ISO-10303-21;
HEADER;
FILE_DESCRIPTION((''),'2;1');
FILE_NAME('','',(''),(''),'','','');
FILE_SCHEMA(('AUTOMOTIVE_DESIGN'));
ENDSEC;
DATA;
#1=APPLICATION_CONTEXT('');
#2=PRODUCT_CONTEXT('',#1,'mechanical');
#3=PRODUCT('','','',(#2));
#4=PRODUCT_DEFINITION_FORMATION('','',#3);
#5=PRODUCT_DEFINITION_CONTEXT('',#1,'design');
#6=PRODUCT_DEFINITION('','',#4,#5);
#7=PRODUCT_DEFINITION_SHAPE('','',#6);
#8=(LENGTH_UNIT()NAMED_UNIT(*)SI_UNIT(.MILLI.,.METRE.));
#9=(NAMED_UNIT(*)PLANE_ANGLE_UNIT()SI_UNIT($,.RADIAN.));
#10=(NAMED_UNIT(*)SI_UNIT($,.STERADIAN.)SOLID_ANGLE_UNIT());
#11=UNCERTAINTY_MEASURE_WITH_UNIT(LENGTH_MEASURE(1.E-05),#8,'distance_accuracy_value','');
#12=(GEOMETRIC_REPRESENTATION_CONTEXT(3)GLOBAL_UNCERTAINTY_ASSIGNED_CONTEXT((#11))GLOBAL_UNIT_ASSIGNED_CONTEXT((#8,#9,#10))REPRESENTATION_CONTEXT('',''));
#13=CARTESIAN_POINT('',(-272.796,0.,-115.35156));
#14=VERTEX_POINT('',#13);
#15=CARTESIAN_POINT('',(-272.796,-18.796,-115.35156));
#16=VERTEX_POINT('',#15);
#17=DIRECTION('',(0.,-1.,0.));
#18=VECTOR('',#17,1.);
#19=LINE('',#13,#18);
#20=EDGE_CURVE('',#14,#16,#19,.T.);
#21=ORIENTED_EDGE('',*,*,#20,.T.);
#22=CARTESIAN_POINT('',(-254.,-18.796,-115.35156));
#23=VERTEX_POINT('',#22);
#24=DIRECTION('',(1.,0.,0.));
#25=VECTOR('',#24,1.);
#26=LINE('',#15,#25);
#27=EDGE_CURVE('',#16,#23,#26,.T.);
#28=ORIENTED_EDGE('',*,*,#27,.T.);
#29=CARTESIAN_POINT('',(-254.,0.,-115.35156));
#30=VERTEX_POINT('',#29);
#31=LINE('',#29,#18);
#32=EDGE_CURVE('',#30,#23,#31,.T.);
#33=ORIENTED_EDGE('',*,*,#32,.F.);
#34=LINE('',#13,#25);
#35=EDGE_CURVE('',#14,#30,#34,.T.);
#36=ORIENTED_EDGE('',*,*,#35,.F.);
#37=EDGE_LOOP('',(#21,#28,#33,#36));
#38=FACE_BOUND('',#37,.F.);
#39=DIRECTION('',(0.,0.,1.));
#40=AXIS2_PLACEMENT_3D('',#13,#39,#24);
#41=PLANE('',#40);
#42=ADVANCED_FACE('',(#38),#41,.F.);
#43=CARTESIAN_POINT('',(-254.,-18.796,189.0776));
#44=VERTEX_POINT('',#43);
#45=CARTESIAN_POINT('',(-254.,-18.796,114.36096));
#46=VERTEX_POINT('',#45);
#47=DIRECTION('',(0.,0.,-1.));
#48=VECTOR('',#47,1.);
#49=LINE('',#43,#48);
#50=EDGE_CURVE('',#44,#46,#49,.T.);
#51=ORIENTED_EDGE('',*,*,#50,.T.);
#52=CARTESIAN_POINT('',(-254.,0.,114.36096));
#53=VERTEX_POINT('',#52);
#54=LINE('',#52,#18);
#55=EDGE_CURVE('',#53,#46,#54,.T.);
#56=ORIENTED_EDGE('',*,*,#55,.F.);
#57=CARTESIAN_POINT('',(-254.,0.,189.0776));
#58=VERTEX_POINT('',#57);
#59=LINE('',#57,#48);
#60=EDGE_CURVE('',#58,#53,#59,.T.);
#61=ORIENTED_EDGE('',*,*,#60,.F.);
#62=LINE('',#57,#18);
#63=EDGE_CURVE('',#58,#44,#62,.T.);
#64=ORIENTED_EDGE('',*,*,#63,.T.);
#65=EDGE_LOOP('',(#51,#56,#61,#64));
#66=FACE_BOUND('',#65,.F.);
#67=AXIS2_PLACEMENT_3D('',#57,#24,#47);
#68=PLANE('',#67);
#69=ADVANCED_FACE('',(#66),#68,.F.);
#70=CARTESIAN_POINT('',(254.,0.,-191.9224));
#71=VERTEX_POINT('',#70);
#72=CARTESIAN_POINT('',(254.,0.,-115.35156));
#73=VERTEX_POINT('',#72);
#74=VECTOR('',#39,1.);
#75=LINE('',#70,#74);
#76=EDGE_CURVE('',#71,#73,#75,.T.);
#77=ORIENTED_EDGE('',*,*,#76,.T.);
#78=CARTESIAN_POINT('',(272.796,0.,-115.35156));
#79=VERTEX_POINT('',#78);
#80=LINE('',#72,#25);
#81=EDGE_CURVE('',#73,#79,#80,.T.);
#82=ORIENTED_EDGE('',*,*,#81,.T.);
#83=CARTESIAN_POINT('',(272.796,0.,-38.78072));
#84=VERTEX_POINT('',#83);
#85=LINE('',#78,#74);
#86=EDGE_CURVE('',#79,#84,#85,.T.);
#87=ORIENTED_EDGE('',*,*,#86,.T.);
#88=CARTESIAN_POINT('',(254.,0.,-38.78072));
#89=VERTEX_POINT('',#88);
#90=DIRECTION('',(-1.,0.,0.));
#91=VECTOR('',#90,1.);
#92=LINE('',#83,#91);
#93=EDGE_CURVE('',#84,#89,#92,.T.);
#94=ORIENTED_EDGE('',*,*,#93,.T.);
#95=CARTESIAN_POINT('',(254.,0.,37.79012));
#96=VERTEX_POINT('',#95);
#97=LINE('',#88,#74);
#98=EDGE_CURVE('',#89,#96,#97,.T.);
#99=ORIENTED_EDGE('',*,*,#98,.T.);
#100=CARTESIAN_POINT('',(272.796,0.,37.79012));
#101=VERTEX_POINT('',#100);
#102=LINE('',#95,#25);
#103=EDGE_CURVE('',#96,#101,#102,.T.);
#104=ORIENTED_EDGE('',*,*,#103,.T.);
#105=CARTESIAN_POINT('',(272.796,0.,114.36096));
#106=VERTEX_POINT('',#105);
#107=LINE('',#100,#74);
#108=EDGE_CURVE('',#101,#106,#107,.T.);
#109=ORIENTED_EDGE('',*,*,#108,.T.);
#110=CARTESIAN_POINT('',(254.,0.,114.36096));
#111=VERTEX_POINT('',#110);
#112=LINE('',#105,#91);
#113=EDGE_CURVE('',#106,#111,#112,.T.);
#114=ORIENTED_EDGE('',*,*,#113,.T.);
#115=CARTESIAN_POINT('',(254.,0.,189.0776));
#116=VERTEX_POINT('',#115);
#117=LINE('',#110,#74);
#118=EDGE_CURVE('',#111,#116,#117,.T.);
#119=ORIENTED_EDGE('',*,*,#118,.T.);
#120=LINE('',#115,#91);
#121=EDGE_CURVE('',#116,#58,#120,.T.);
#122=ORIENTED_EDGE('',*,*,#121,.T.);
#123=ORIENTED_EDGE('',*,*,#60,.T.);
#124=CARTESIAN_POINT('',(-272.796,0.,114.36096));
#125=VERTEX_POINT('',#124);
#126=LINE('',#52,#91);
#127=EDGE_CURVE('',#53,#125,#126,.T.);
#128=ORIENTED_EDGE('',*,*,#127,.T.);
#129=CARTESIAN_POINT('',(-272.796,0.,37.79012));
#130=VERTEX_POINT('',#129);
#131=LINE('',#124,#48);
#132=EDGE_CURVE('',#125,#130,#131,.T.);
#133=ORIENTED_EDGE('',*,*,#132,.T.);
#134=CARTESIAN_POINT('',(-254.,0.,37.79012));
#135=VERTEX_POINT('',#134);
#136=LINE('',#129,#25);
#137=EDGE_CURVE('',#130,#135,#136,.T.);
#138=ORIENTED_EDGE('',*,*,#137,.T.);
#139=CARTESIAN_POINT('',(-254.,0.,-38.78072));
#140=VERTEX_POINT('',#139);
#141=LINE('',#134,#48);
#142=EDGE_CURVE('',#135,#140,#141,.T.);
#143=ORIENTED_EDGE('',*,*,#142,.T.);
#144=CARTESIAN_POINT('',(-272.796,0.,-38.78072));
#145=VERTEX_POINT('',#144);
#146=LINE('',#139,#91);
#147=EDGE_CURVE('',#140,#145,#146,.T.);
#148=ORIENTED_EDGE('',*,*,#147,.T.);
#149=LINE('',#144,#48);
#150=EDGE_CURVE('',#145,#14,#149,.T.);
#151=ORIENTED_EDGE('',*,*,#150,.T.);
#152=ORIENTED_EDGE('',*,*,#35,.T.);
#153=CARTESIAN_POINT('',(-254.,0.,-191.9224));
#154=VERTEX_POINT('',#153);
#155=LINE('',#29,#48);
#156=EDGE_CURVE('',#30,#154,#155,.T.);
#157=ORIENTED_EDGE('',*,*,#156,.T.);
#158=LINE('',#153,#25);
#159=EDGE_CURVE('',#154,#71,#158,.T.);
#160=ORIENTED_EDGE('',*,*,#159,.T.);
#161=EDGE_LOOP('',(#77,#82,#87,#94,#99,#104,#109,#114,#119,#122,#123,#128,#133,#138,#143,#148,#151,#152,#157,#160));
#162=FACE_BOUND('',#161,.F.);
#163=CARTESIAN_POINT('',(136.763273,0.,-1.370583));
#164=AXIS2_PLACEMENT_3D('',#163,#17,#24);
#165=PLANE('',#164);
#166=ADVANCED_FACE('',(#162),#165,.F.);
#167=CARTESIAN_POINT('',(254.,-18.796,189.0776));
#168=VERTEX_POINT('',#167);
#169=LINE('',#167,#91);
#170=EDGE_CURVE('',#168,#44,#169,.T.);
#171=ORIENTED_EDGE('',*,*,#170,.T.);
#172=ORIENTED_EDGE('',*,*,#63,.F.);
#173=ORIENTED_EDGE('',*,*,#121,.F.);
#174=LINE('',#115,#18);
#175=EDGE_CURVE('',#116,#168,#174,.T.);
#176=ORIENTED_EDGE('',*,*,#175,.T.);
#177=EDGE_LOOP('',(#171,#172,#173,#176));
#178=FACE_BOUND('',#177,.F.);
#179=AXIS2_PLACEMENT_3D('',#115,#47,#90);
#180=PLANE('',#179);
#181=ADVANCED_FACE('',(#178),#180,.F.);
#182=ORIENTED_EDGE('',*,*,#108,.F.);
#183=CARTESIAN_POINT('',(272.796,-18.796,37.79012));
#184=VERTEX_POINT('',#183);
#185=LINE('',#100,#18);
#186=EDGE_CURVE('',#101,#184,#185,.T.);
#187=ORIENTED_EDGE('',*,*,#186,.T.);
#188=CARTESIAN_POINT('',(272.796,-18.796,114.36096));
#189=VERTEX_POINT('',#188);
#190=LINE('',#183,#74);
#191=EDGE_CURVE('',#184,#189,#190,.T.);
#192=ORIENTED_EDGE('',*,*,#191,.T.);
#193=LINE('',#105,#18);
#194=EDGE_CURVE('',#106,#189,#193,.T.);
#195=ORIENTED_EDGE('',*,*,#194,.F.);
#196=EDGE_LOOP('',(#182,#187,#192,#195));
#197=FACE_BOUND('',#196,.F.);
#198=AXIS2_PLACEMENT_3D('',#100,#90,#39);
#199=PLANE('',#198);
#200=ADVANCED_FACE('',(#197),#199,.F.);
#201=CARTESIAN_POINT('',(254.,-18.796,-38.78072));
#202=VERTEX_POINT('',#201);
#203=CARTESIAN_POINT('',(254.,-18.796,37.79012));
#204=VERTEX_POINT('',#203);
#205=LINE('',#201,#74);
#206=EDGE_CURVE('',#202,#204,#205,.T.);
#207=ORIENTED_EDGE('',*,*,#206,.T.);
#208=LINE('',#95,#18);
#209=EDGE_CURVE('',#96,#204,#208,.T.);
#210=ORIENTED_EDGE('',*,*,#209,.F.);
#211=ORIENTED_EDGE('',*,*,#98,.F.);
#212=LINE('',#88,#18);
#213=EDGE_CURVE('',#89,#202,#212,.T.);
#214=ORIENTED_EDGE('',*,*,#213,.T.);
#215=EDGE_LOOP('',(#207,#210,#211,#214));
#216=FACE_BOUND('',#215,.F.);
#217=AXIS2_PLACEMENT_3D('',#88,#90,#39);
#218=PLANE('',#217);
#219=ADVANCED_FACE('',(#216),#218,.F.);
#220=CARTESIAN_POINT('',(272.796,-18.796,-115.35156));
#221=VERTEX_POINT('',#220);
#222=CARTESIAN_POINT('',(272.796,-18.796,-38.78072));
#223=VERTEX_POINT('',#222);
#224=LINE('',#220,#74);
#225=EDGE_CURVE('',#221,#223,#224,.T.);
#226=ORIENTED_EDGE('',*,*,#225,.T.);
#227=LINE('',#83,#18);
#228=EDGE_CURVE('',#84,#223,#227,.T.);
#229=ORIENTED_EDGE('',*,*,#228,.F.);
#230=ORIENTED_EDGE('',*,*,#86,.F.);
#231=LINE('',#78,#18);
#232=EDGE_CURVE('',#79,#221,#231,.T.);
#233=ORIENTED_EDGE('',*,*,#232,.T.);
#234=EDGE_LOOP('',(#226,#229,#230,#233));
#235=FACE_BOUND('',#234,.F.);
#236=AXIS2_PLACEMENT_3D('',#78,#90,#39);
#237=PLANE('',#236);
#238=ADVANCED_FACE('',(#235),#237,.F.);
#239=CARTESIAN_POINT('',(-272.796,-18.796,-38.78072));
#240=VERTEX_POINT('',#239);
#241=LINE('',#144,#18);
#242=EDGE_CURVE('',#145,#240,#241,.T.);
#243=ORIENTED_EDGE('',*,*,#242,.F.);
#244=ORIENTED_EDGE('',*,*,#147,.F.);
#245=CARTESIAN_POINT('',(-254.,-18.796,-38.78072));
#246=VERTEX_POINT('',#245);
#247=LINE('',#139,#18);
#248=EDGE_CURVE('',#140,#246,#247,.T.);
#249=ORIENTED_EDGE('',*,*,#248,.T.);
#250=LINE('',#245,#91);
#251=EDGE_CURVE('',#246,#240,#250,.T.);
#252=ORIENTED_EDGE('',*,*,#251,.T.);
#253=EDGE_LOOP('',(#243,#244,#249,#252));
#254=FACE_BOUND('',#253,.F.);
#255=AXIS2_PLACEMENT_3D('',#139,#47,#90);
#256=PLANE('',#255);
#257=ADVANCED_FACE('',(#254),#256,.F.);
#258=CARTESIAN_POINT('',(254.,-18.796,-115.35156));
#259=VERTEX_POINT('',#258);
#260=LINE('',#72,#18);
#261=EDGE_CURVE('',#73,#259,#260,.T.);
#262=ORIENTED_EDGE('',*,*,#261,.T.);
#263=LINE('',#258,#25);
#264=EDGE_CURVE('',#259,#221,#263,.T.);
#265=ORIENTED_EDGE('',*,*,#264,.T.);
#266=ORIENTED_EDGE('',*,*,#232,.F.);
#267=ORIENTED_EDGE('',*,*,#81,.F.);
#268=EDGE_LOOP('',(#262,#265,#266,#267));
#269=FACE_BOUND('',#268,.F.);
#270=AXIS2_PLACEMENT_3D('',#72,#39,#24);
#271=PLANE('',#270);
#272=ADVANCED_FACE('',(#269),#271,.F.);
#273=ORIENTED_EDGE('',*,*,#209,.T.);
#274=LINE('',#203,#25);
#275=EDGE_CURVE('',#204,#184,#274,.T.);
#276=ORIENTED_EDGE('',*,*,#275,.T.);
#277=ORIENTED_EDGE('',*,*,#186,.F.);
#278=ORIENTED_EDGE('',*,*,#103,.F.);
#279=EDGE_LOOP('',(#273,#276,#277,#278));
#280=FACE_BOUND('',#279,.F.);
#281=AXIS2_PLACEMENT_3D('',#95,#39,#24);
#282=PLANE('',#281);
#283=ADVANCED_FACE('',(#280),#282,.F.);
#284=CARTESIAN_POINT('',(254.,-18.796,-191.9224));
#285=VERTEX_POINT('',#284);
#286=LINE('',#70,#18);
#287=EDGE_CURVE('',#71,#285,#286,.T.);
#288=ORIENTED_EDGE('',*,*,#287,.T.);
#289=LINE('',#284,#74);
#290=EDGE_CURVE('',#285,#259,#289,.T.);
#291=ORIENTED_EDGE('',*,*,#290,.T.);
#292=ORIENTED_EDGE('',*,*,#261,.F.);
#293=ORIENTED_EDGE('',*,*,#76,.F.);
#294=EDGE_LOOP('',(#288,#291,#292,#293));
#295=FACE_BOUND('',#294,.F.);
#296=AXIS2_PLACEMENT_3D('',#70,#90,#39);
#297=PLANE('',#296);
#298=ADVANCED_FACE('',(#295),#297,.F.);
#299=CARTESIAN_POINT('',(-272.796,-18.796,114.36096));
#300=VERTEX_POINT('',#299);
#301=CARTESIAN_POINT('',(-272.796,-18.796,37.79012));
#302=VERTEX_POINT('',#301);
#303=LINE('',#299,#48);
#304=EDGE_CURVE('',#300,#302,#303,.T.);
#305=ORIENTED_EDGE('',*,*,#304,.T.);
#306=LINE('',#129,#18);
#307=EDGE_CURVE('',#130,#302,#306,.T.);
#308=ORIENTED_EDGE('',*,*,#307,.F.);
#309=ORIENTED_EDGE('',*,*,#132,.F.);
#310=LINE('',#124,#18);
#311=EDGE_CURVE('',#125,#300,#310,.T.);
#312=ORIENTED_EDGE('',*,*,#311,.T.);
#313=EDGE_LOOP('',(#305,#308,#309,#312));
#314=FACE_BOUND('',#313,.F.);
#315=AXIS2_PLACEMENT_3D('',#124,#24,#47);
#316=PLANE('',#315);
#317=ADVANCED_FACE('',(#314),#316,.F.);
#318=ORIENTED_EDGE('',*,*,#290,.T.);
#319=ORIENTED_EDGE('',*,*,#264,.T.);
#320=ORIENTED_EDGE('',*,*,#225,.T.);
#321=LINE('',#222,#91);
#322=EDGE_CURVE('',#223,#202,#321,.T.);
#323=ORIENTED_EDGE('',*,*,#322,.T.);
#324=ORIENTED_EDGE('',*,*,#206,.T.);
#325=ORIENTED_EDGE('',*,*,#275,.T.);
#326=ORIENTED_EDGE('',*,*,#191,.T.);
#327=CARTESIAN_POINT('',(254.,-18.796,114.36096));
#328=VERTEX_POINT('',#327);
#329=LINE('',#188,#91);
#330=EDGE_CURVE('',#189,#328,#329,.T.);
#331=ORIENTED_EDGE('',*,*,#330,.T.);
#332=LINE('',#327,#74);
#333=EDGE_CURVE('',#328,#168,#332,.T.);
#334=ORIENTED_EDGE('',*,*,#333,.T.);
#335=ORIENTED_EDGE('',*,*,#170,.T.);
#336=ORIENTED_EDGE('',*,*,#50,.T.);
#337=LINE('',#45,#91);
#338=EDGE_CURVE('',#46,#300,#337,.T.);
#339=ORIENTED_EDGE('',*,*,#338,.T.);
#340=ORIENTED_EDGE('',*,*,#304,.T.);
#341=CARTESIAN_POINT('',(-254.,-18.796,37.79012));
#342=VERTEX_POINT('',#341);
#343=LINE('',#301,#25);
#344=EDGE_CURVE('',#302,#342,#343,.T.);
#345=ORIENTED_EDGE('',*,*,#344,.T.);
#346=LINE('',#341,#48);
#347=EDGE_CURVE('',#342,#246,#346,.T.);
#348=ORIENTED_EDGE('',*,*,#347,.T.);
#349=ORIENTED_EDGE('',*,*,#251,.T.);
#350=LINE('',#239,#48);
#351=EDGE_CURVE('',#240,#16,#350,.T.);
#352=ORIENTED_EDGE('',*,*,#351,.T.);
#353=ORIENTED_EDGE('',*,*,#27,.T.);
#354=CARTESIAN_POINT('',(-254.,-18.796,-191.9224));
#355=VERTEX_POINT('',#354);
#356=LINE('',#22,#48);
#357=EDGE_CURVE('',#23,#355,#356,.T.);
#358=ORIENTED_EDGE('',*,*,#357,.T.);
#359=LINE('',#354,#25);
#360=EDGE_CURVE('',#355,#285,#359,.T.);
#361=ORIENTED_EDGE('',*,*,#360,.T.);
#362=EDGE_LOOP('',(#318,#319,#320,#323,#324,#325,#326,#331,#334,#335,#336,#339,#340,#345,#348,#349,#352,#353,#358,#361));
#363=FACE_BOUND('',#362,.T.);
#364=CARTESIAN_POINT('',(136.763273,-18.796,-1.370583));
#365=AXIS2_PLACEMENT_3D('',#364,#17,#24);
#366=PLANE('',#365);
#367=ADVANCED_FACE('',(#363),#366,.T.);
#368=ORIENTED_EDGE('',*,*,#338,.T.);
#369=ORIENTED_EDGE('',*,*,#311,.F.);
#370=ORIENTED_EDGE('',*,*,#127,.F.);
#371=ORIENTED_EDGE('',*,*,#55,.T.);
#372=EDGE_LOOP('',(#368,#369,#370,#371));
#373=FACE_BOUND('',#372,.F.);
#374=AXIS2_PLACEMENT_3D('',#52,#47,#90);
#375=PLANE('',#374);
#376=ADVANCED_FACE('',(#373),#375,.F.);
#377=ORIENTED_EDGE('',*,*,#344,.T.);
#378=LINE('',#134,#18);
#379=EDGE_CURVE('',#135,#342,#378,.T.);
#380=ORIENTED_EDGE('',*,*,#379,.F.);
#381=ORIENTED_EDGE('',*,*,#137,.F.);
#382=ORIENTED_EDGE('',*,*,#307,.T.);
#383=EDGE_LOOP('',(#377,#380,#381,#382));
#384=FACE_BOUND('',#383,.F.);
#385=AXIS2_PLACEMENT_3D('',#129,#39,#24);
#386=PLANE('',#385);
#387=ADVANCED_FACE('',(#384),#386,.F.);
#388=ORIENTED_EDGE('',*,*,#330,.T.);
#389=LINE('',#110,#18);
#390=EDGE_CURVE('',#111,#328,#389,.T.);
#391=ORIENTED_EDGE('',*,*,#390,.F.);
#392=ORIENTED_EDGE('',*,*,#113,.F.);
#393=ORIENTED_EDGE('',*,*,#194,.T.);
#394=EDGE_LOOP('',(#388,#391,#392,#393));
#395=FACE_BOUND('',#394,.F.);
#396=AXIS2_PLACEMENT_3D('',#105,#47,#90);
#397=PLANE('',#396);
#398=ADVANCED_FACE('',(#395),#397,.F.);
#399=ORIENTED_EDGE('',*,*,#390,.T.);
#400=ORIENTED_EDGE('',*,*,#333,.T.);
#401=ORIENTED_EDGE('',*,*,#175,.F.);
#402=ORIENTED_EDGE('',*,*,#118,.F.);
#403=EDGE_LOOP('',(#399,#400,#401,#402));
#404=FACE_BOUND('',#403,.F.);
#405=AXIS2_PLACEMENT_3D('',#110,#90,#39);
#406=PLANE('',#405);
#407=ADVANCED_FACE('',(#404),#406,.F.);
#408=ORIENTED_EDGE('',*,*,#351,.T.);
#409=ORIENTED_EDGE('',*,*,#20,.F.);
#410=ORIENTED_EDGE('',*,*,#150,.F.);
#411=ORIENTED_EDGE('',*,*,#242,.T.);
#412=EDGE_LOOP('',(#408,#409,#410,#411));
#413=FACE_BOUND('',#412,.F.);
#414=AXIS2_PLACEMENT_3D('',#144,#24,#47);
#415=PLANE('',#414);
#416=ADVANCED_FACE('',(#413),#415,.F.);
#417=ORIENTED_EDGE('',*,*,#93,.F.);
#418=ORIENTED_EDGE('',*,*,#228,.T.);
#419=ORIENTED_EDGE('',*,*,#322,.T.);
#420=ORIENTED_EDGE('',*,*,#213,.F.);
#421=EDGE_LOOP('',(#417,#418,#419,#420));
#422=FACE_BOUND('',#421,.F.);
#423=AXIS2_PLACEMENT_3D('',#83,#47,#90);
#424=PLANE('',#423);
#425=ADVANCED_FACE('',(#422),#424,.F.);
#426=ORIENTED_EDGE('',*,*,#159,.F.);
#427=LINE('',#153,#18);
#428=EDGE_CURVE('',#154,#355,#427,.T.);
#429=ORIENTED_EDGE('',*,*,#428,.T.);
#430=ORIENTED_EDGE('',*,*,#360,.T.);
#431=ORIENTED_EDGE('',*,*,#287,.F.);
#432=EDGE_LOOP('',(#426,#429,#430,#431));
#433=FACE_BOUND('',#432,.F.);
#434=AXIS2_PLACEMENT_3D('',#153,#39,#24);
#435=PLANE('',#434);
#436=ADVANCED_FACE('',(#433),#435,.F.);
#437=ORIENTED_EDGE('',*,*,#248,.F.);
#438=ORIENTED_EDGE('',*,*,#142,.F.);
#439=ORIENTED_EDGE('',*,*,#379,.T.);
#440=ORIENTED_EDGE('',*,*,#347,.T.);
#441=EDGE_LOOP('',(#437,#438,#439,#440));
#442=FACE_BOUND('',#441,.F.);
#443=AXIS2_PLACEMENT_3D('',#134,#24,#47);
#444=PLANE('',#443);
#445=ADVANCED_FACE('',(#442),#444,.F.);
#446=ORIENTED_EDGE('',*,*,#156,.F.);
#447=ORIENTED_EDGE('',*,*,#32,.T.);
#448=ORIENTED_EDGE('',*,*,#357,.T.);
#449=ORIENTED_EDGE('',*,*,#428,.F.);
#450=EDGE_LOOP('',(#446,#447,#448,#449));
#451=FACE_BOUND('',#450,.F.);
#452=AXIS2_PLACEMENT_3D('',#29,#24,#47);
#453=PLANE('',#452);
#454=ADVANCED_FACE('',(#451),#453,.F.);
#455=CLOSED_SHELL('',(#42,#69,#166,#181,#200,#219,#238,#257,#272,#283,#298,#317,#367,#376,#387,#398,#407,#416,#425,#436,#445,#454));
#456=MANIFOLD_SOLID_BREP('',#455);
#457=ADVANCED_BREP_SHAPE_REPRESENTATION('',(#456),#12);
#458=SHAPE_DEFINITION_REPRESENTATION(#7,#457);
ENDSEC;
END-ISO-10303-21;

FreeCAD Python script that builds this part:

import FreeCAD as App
import Part
import Sketcher

V = App.Vector
Q = App.Units.Quantity

doc = App.newDocument("Part")
body = doc.addObject("PartDesign::Body", "Body")

# Sketch on XZ plane
sketch1 = doc.addObject("Sketcher::SketchObject", "Sketch")
body.addObject(sketch1)
sketch1.AttachmentSupport = (doc.XZ_Plane, [""])
sketch1.MapMode = "FlatFace"
sketch1.addGeometry([
    Part.LineSegment(V(254, -192, 0), V(254, -115, 0)),  # 0
    Part.LineSegment(V(254, -115, 0), V(273, -115, 0)),  # 1
    Part.LineSegment(V(273, -115, 0), V(273, -39, 0)),  # 2
    Part.LineSegment(V(273, -39, 0), V(254, -39, 0)),  # 3
    Part.LineSegment(V(254, -39, 0), V(254, 38, 0)),  # 4
    Part.LineSegment(V(254, 38, 0), V(273, 38, 0)),  # 5
    Part.LineSegment(V(273, 38, 0), V(273, 114, 0)),  # 6
    Part.LineSegment(V(273, 114, 0), V(254, 114, 0)),  # 7
    Part.LineSegment(V(254, 114, 0), V(254, 189, 0)),  # 8
    Part.LineSegment(V(254, 189, 0), V(-254, 189, 0)),  # 9
    Part.LineSegment(V(-254, 189, 0), V(-254, 114, 0)),  # 10
    Part.LineSegment(V(-254, 114, 0), V(-273, 114, 0)),  # 11
    Part.LineSegment(V(-273, 114, 0), V(-273, 38, 0)),  # 12
    Part.LineSegment(V(-273, 38, 0), V(-254, 38, 0)),  # 13
    Part.LineSegment(V(-254, 38, 0), V(-254, -39, 0)),  # 14
    Part.LineSegment(V(-254, -39, 0), V(-273, -39, 0)),  # 15
    Part.LineSegment(V(-273, -39, 0), V(-273, -115, 0)),  # 16
    Part.LineSegment(V(-273, -115, 0), V(-254, -115, 0)),  # 17
    Part.LineSegment(V(-254, -115, 0), V(-254, -192, 0)),  # 18
    Part.LineSegment(V(-254, -192, 0), V(254, -192, 0)),  # 19
], False)
sketch1.addConstraint([
    Sketcher.Constraint("Coincident", 0, 2, 1, 1),
    Sketcher.Constraint("Coincident", 1, 2, 2, 1),
    Sketcher.Constraint("Coincident", 2, 2, 3, 1),
    Sketcher.Constraint("Coincident", 3, 2, 4, 1),
    Sketcher.Constraint("Coincident", 4, 2, 5, 1),
    Sketcher.Constraint("Coincident", 5, 2, 6, 1),
    Sketcher.Constraint("Coincident", 6, 2, 7, 1),
    Sketcher.Constraint("Coincident", 7, 2, 8, 1),
    Sketcher.Constraint("Coincident", 8, 2, 9, 1),
    Sketcher.Constraint("Coincident", 9, 2, 10, 1),
    Sketcher.Constraint("Coincident", 10, 2, 11, 1),
    Sketcher.Constraint("Coincident", 11, 2, 12, 1),
    Sketcher.Constraint("Coincident", 12, 2, 13, 1),
    Sketcher.Constraint("Coincident", 13, 2, 14, 1),
    Sketcher.Constraint("Coincident", 14, 2, 15, 1),
    Sketcher.Constraint("Coincident", 15, 2, 16, 1),
    Sketcher.Constraint("Coincident", 16, 2, 17, 1),
    Sketcher.Constraint("Coincident", 17, 2, 18, 1),
    Sketcher.Constraint("Coincident", 18, 2, 19, 1),
    Sketcher.Constraint("Coincident", 19, 2, 0, 1),
    Sketcher.Constraint("Vertical", 0),
    Sketcher.Constraint("Horizontal", 1),
    Sketcher.Constraint("Vertical", 2),
    Sketcher.Constraint("Horizontal", 3),
    Sketcher.Constraint("Vertical", 4),
    Sketcher.Constraint("Horizontal", 5),
    Sketcher.Constraint("Vertical", 6),
    Sketcher.Constraint("Horizontal", 7),
    Sketcher.Constraint("Vertical", 8),
    Sketcher.Constraint("Horizontal", 9),
    Sketcher.Constraint("Vertical", 10),
    Sketcher.Constraint("Horizontal", 11),
    Sketcher.Constraint("Vertical", 12),
    Sketcher.Constraint("Horizontal", 13),
    Sketcher.Constraint("Vertical", 14),
    Sketcher.Constraint("Horizontal", 15),
    Sketcher.Constraint("Vertical", 16),
    Sketcher.Constraint("Horizontal", 17),
    Sketcher.Constraint("Vertical", 18),
    Sketcher.Constraint("Horizontal", 19),
    Sketcher.Constraint("Symmetric", 7, 2, 10, 2, -2),
    Sketcher.Constraint("Symmetric", 5, 2, 12, 2, -2),
    Sketcher.Constraint("Symmetric", 3, 2, 14, 2, -2),
    Sketcher.Constraint("Symmetric", 1, 2, 16, 2, -2),
    Sketcher.Constraint("Vertical", 0, 2, 3, 2),
    Sketcher.Constraint("Vertical", 2, 2, 5, 2),
    Sketcher.Constraint("Vertical", 4, 2, 7, 2),
    Sketcher.Constraint("Vertical", 14, 2, 17, 2),
    Sketcher.Constraint("Equal", 0, 2),
    Sketcher.Constraint("Equal", 2, 4),
    Sketcher.Constraint("Equal", 4, 6),
    Sketcher.Constraint("DistanceX", 9, 2, 9, 1, Q("20 in")),
    Sketcher.Constraint("DistanceX", 1, 1, 1, 2, Q("0.74 in")),
    Sketcher.Constraint("DistanceY", 0, 1, 0, 2, Q("3.0146 in")),
    Sketcher.Constraint("DistanceY", 8, 1, 8, 2, Q("2.9416 in")),
    Sketcher.Constraint("DistanceY", -1, 1, 8, 2, Q("7.444 in")),
])
pad1 = doc.addObject("PartDesign::Pad", "Pad")
body.addObject(pad1)
pad1.Profile = sketch1
pad1.Length = Q("0.74 in")

doc.recompute()
